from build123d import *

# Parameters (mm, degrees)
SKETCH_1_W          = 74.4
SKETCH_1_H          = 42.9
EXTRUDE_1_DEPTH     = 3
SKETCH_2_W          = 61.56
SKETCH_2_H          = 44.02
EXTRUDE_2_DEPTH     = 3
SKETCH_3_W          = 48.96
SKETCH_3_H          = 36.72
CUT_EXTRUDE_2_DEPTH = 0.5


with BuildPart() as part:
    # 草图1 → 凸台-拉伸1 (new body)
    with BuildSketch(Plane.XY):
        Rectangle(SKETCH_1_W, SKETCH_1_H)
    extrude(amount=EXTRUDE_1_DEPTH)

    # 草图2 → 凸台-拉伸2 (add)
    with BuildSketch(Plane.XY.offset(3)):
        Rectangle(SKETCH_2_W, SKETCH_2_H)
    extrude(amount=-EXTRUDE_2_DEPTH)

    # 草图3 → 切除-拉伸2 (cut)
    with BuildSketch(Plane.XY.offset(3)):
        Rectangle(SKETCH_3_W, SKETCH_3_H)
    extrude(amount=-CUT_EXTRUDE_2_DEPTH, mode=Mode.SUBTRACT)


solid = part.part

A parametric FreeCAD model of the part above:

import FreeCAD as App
import Part
import Sketcher
Q = App.Units.Quantity

doc = App.newDocument("Part")
body = doc.addObject("PartDesign::Body", "Body")

sketch1 = doc.addObject("Sketcher::SketchObject", "Sketch")
body.addObject(sketch1)
sketch1.AttachmentSupport = (doc.XY_Plane, [""])
sketch1.MapMode = "FlatFace"
sketch1.addGeometry([
    Part.LineSegment(App.Vector(-37, 21, 0), App.Vector(-37, -21, 0)),
    Part.LineSegment(App.Vector(-37, -21, 0), App.Vector(37, -21, 0)),
    Part.LineSegment(App.Vector(37, -21, 0), App.Vector(37, 21, 0)),
    Part.LineSegment(App.Vector(37, 21, 0), App.Vector(-37, 21, 0)),
], False)
sketch1.addConstraint([
    Sketcher.Constraint("Coincident", 0, 2, 1, 1),
    Sketcher.Constraint("Coincident", 1, 2, 2, 1),
    Sketcher.Constraint("Coincident", 2, 2, 3, 1),
    Sketcher.Constraint("Coincident", 3, 2, 0, 1),
    Sketcher.Constraint("Vertical", 0),
    Sketcher.Constraint("Horizontal", 1),
    Sketcher.Constraint("Vertical", 2),
    Sketcher.Constraint("Horizontal", 3),
    Sketcher.Constraint("Symmetric", 0, 2, 2, 2, -1, 1),
    Sketcher.Constraint("DistanceX", 1, 1, 1, 2, Q("74.4 mm")),
    Sketcher.Constraint("DistanceY", 0, 2, 0, 1, Q("42.9 mm")),
])
pad1 = doc.addObject("PartDesign::Pad", "Pad")
body.addObject(pad1)
pad1.Profile = sketch1
pad1.Length = 3

sketch2 = doc.addObject("Sketcher::SketchObject", "Sketch001")
body.addObject(sketch2)
sketch2.AttachmentSupport = (doc.XY_Plane, [""])
sketch2.MapMode = "FlatFace"
sketch2.AttachmentOffset = App.Placement(App.Vector(0, 0, 3), App.Rotation())
sketch2.addGeometry([
    Part.LineSegment(App.Vector(-31, 22, 0), App.Vector(-31, -22, 0)),
    Part.LineSegment(App.Vector(-31, -22, 0), App.Vector(31, -22, 0)),
    Part.LineSegment(App.Vector(31, -22, 0), App.Vector(31, 22, 0)),
    Part.LineSegment(App.Vector(31, 22, 0), App.Vector(-31, 22, 0)),
], False)
sketch2.addConstraint([
    Sketcher.Constraint("Coincident", 0, 2, 1, 1),
    Sketcher.Constraint("Coincident", 1, 2, 2, 1),
    Sketcher.Constraint("Coincident", 2, 2, 3, 1),
    Sketcher.Constraint("Coincident", 3, 2, 0, 1),
    Sketcher.Constraint("Vertical", 0),
    Sketcher.Constraint("Horizontal", 1),
    Sketcher.Constraint("Vertical", 2),
    Sketcher.Constraint("Horizontal", 3),
    Sketcher.Constraint("Symmetric", 0, 2, 2, 2, -1, 1),
    Sketcher.Constraint("DistanceX", 1, 1, 1, 2, Q("61.56 mm")),
    Sketcher.Constraint("DistanceY", 0, 2, 0, 1, Q("44.02 mm")),
])
pad2 = doc.addObject("PartDesign::Pad", "Pad001")
body.addObject(pad2)
pad2.Profile = sketch2
pad2.Length = 3
pad2.Reversed = True

sketch3 = doc.addObject("Sketcher::SketchObject", "Sketch002")
body.addObject(sketch3)
sketch3.AttachmentSupport = (doc.XY_Plane, [""])
sketch3.MapMode = "FlatFace"
sketch3.AttachmentOffset = App.Placement(App.Vector(0, 0, 3), App.Rotation())
sketch3.addGeometry([
    Part.LineSegment(App.Vector(-24, 18, 0), App.Vector(-24, -18, 0)),
    Part.LineSegment(App.Vector(-24, -18, 0), App.Vector(24, -18, 0)),
    Part.LineSegment(App.Vector(24, -18, 0), App.Vector(24, 18, 0)),
    Part.LineSegment(App.Vector(24, 18, 0), App.Vector(-24, 18, 0)),
], False)
sketch3.addConstraint([
    Sketcher.Constraint("Coincident", 0, 2, 1, 1),
    Sketcher.Constraint("Coincident", 1, 2, 2, 1),
    Sketcher.Constraint("Coincident", 2, 2, 3, 1),
    Sketcher.Constraint("Coincident", 3, 2, 0, 1),
    Sketcher.Constraint("Vertical", 0),
    Sketcher.Constraint("Horizontal", 1),
    Sketcher.Constraint("Vertical", 2),
    Sketcher.Constraint("Horizontal", 3),
    Sketcher.Constraint("Symmetric", 0, 2, 2, 2, -1, 1),
    Sketcher.Constraint("DistanceX", 1, 1, 1, 2, Q("48.96 mm")),
    Sketcher.Constraint("DistanceY", 0, 2, 0, 1, Q("36.72 mm")),
])
pocket1 = doc.addObject("PartDesign::Pocket", "Pocket")
body.addObject(pocket1)
pocket1.Profile = sketch3
pocket1.Length = 0.5

doc.recompute()
